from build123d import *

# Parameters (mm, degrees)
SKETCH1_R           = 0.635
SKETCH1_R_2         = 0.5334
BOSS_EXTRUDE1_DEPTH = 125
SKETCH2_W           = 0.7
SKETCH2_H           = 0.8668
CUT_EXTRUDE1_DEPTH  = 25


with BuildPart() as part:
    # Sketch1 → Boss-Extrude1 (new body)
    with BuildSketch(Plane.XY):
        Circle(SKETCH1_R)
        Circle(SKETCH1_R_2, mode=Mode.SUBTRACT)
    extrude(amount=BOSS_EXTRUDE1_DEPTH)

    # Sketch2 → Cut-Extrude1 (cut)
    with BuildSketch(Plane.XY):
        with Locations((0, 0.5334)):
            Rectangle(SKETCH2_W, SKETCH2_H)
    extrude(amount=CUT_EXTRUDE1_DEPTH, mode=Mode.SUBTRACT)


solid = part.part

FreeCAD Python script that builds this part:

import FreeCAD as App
import Part
import Sketcher
from FreeCAD import Vector

doc = App.newDocument("Part")
params = doc.addObject("Spreadsheet::Sheet", "Params")
for row, (alias, value) in enumerate([
    ("sketch1_diameter", "1.27 mm"),
    ("pad1_length", "125 mm"),
    ("sketch2_width", "0.7 mm"),
    ("pocket1_length", "25 mm"),
], start=1):
    params.set(f"A{row}", alias)
    params.set(f"B{row}", "=" + value)
    params.setAlias(f"B{row}", alias)

body = doc.addObject("PartDesign::Body", "Body")

# Sketch on XY plane
sketch1 = doc.addObject("Sketcher::SketchObject", "Sketch")
body.addObject(sketch1)
sketch1.AttachmentSupport = (doc.XY_Plane, [""])
sketch1.MapMode = "FlatFace"
sketch1.addGeometry(Part.Circle(Vector(0, 0, 0), Vector(0, 0, 1), 0.6), False)
sketch1.addGeometry(Part.Circle(Vector(0, 0, 0), Vector(0, 0, 1), 0.5), False)
sketch1.addConstraint(Sketcher.Constraint("Coincident", 0, 3, -1, 1))
sketch1.addConstraint(Sketcher.Constraint("Coincident", 1, 3, -1, 1))
sketch1.addConstraint(Sketcher.Constraint("Diameter", 0, 1.27))
sketch1.addConstraint(Sketcher.Constraint("Diameter", 1, 1.0668))
sketch1.setExpression("Constraints[2]", "Params.sketch1_diameter")
pad1 = doc.addObject("PartDesign::Pad", "Pad")
body.addObject(pad1)
pad1.Profile = sketch1
pad1.setExpression("Length", "Params.pad1_length")

# Sketch on XY plane
sketch2 = doc.addObject("Sketcher::SketchObject", "Sketch001")
body.addObject(sketch2)
sketch2.AttachmentSupport = (doc.XY_Plane, [""])
sketch2.MapMode = "FlatFace"
sketch2.addGeometry(Part.LineSegment(Vector(-0.3, 1, 0), Vector(-0.3, 0.1, 0)), False)
sketch2.addGeometry(Part.LineSegment(Vector(-0.3, 0.1, 0), Vector(0.3, 0.1, 0)), False)
sketch2.addGeometry(Part.LineSegment(Vector(0.3, 0.1, 0), Vector(0.3, 1, 0)), False)
sketch2.addGeometry(Part.LineSegment(Vector(0.3, 1, 0), Vector(-0.3, 1, 0)), False)
sketch2.addConstraint(Sketcher.Constraint("Coincident", 0, 2, 1, 1))
sketch2.addConstraint(Sketcher.Constraint("Coincident", 1, 2, 2, 1))
sketch2.addConstraint(Sketcher.Constraint("Coincident", 2, 2, 3, 1))
sketch2.addConstraint(Sketcher.Constraint("Coincident", 3, 2, 0, 1))
sketch2.addConstraint(Sketcher.Constraint("Vertical", 0))
sketch2.addConstraint(Sketcher.Constraint("Horizontal", 1))
sketch2.addConstraint(Sketcher.Constraint("Vertical", 2))
sketch2.addConstraint(Sketcher.Constraint("Horizontal", 3))
sketch2.addConstraint(Sketcher.Constraint("DistanceX", 1, 1, 1, 2, 0.7))
sketch2.addConstraint(Sketcher.Constraint("DistanceY", -1, 1, 0, 2, 0.1))
sketch2.addConstraint(Sketcher.Constraint("DistanceX", 0, 2, -1, 1, 0.35))
sketch2.addConstraint(Sketcher.Constraint("DistanceY", 0, 2, 0, 1, 0.8668))
sketch2.setExpression("Constraints[8]", "Params.sketch2_width")
pocket1 = doc.addObject("PartDesign::Pocket", "Pocket")
body.addObject(pocket1)
pocket1.Profile = sketch2
pocket1.setExpression("Length", "Params.pocket1_length")
pocket1.Reversed = True

doc.recompute()
